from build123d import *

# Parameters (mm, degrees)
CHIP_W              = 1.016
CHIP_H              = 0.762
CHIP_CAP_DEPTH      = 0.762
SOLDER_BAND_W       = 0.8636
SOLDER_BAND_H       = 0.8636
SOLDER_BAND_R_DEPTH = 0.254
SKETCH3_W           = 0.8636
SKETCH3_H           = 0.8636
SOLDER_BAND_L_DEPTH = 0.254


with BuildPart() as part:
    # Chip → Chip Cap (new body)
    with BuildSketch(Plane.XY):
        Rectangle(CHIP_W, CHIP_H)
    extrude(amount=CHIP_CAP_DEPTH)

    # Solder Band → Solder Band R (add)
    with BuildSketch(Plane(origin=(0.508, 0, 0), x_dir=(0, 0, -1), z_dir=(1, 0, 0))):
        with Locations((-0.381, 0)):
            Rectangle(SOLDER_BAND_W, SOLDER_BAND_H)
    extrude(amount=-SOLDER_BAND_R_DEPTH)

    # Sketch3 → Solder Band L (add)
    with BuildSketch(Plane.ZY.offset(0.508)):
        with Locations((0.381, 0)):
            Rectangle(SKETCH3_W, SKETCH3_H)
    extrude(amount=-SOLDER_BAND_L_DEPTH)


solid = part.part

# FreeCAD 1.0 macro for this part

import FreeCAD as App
import Part
import Sketcher
from FreeCAD import Vector
Q = App.Units.Quantity


def add_polygon(sketch, points):
    """Adds a closed chain of lines whose ends are joined by coincident constraints."""
    first, n = sketch.GeometryCount, len(points)
    for a, b in zip(points, points[1:] + points[:1]):
        sketch.addGeometry(Part.LineSegment(App.Vector(*a, 0), App.Vector(*b, 0)), False)
    for i in range(n):
        sketch.addConstraint(Sketcher.Constraint("Coincident", first + i, 2, first + (i + 1) % n, 1))

doc = App.newDocument("Part")
body = doc.addObject("PartDesign::Body", "Body")

sketch1 = doc.addObject("Sketcher::SketchObject", "Sketch")
body.addObject(sketch1)
sketch1.AttachmentSupport = (doc.XY_Plane, [""])
sketch1.MapMode = "FlatFace"
add_polygon(sketch1, [(-0.508, 0.381), (-0.508, -0.381), (0.508, -0.381), (0.508, 0.381)])
sketch1.addConstraint([
    Sketcher.Constraint("Vertical", 0),
    Sketcher.Constraint("Horizontal", 1),
    Sketcher.Constraint("Vertical", 2),
    Sketcher.Constraint("Horizontal", 3),
    Sketcher.Constraint("Symmetric", 0, 2, 2, 2, -1, 1),
    Sketcher.Constraint("DistanceX", 1, 1, 1, 2, Q("0.04 in")),
    Sketcher.Constraint("DistanceY", 0, 2, 0, 1, Q("0.03 in")),
])
pad1 = doc.addObject("PartDesign::Pad", "Pad")
body.addObject(pad1)
pad1.Profile = sketch1
pad1.Length = Q("0.03 in")

sketch2 = doc.addObject("Sketcher::SketchObject", "Sketch001")
body.addObject(sketch2)
sketch2.AttachmentSupport = (doc.YZ_Plane, [""])
sketch2.MapMode = "FlatFace"
sketch2.AttachmentOffset = App.Placement(Vector(0, 0, 0.02 * 25.4), App.Rotation())
add_polygon(sketch2, [(0.4318, 0.8128), (-0.4318, 0.8128), (-0.4318, -0.0508), (0.4318, -0.0508)])
sketch2.addConstraint([
    Sketcher.Constraint("Horizontal", 0),
    Sketcher.Constraint("Vertical", 1),
    Sketcher.Constraint("Horizontal", 2),
    Sketcher.Constraint("Vertical", 3),
    Sketcher.Constraint("Equal", 2, 1),
    Sketcher.Constraint("DistanceX", 0, 2, 0, 1, Q("0.034 in")),
    Sketcher.Constraint("DistanceX", 0, 2, -1, 1, Q("0.017 in")),
    Sketcher.Constraint("DistanceY", -1, 1, 0, 2, Q("0.032 in")),
])
pad2 = doc.addObject("PartDesign::Pad", "Pad001")
body.addObject(pad2)
pad2.Profile = sketch2
pad2.Length = Q("0.01 in")
pad2.Reversed = True

sketch3 = doc.addObject("Sketcher::SketchObject", "Sketch002")
body.addObject(sketch3)
sketch3.AttachmentSupport = (doc.YZ_Plane, [""])
sketch3.MapMode = "FlatFace"
sketch3.AttachmentOffset = App.Placement(Vector(0, 0, -0.02 * 25.4), App.Rotation())
add_polygon(sketch3, [(0.4318, -0.0508), (-0.4318, -0.0508), (-0.4318, 0.8128), (0.4318, 0.8128)])
sketch3.addConstraint([
    Sketcher.Constraint("Horizontal", 0),
    Sketcher.Constraint("Vertical", 1),
    Sketcher.Constraint("Horizontal", 2),
    Sketcher.Constraint("Vertical", 3),
    Sketcher.Constraint("Equal", 2, 1),
    Sketcher.Constraint("DistanceX", 0, 2, 0, 1, Q("0.034 in")),
    Sketcher.Constraint("DistanceX", 0, 2, -1, 1, Q("0.017 in")),
    Sketcher.Constraint("DistanceY", 0, 2, -1, 1, Q("0.002 in")),
])
pad3 = doc.addObject("PartDesign::Pad", "Pad002")
body.addObject(pad3)
pad3.Profile = sketch3
pad3.Length = Q("0.01 in")

doc.recompute()
